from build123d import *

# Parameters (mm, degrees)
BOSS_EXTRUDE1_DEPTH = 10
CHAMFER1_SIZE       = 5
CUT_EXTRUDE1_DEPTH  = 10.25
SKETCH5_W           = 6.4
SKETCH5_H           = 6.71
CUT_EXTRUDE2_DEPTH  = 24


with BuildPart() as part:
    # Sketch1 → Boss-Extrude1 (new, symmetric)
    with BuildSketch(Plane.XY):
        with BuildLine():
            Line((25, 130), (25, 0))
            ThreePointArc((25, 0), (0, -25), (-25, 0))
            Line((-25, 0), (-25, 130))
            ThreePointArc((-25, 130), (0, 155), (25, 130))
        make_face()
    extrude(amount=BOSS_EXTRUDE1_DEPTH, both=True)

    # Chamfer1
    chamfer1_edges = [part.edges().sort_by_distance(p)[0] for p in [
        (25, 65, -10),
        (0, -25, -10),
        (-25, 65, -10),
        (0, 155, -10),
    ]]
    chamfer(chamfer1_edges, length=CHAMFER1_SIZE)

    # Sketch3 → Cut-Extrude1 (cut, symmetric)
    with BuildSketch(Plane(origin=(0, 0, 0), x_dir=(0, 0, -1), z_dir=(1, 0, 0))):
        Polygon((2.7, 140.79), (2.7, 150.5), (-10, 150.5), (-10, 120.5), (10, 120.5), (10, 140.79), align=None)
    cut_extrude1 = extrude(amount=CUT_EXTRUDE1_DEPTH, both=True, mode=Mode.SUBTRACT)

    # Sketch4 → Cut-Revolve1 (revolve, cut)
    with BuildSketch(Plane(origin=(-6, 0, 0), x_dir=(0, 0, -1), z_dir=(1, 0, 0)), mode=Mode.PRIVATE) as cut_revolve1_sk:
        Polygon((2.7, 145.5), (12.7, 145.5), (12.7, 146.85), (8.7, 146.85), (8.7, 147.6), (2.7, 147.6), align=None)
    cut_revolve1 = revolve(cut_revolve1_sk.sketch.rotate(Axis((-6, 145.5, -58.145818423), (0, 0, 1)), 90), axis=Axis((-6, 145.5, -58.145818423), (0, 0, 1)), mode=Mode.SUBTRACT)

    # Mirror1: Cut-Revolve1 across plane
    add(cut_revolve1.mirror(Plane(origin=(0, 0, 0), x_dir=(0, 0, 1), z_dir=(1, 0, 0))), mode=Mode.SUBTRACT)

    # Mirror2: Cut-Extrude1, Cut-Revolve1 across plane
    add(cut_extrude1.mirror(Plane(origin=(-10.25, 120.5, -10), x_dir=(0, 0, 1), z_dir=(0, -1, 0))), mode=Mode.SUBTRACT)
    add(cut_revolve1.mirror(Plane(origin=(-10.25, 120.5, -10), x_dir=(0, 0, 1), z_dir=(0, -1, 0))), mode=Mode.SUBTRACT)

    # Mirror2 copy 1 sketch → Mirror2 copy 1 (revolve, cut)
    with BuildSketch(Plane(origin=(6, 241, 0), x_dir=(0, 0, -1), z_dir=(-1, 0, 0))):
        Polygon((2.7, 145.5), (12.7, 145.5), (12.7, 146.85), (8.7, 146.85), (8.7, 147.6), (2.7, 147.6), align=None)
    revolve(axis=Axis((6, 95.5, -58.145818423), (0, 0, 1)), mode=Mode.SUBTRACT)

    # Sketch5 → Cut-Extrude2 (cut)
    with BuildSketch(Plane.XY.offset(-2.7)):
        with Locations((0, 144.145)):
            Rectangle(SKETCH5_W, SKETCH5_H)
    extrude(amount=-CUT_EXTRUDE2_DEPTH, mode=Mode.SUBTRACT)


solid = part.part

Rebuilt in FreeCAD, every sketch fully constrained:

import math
import FreeCAD as App
import Part
import Sketcher

V = App.Vector


def edges_at(feature, points):
    """Names of the edges that pass closest to the given points."""
    edges = feature.Shape.Edges
    near = lambda p: min(range(len(edges)), key=lambda i: edges[i].distToShape(Part.Vertex(*p))[0])
    return sorted({f"Edge{near(p) + 1}" for p in points})


def add_polygon(sketch, points):
    """Adds a closed chain of lines whose ends are joined by coincident constraints."""
    first, n = sketch.GeometryCount, len(points)
    for a, b in zip(points, points[1:] + points[:1]):
        sketch.addGeometry(Part.LineSegment(App.Vector(*a, 0), App.Vector(*b, 0)), False)
    for i in range(n):
        sketch.addConstraint(Sketcher.Constraint("Coincident", first + i, 2, first + (i + 1) % n, 1))

doc = App.newDocument("Part")
body = doc.addObject("PartDesign::Body", "Body")

# Sketch on XY plane
sketch1 = body.newObject("Sketcher::SketchObject", "Sketch")
sketch1.AttachmentSupport = (doc.getObject("XY_Plane"), [""])
sketch1.MapMode = "FlatFace"
sketch1.addGeometry(Part.LineSegment(V(25, 0, 0), V(25, 130, 0)), False)
sketch1.addGeometry(Part.ArcOfCircle(Part.Circle(V(0, 130, 0), V(0, 0, 1), 25), math.radians(0), math.radians(180)), False)
sketch1.addGeometry(Part.LineSegment(V(-25, 130, 0), V(-25, 0, 0)), False)
sketch1.addGeometry(Part.ArcOfCircle(Part.Circle(V(0, 0, 0), V(0, 0, 1), 25), math.radians(180), math.radians(360)), False)
sketch1.addConstraint(Sketcher.Constraint("Tangent", 0, 2, 1, 1))
sketch1.addConstraint(Sketcher.Constraint("Tangent", 1, 2, 2, 1))
sketch1.addConstraint(Sketcher.Constraint("Tangent", 2, 2, 3, 1))
sketch1.addConstraint(Sketcher.Constraint("Tangent", 3, 2, 0, 1))
sketch1.addConstraint(Sketcher.Constraint("Vertical", 0))
sketch1.addConstraint(Sketcher.Constraint("Vertical", 2))
sketch1.addConstraint(Sketcher.Constraint("Coincident", 3, 3, -1, 1))
sketch1.addConstraint(Sketcher.Constraint("Radius", 1, 25.0))
sketch1.addConstraint(Sketcher.Constraint("DistanceY", 0, 1, 0, 2, 130.0))
pad1 = body.newObject("PartDesign::Pad", "Pad")
pad1.Profile = sketch1
pad1.Length = 20
pad1.Midplane = True
doc.recompute()

chamfer = body.newObject("PartDesign::Chamfer", "Chamfer")
chamfer.Base = (pad1, edges_at(pad1, [
    (25, 65, -10),
    (0, -25, -10),
    (-25, 65, -10),
    (0, 155, -10),
]))
chamfer.Size = 5

# Sketch on YZ plane
sketch2 = body.newObject("Sketcher::SketchObject", "Sketch001")
sketch2.AttachmentSupport = (doc.getObject("YZ_Plane"), [""])
sketch2.MapMode = "FlatFace"
add_polygon(sketch2, [(140.79, -2.7), (150.5, -2.7), (150.5, 10), (120.5, 10), (120.5, -10), (140.79, -10)])  # lines 0-5
sketch2.addConstraint(Sketcher.Constraint("Horizontal", 0))
sketch2.addConstraint(Sketcher.Constraint("Vertical", 1))
sketch2.addConstraint(Sketcher.Constraint("Horizontal", 2))
sketch2.addConstraint(Sketcher.Constraint("Vertical", 3))
sketch2.addConstraint(Sketcher.Constraint("Horizontal", 4))
sketch2.addConstraint(Sketcher.Constraint("Vertical", 5))
sketch2.addConstraint(Sketcher.Constraint("DistanceX", 2, 2, 2, 1, 30.0))
sketch2.addConstraint(Sketcher.Constraint("DistanceY", 3, 2, 3, 1, 20.0))
sketch2.addConstraint(Sketcher.Constraint("DistanceY", 1, 1, 1, 2, 12.7))
sketch2.addConstraint(Sketcher.Constraint("DistanceY", -1, 1, 1, 2, 10.0))
sketch2.addConstraint(Sketcher.Constraint("DistanceX", 0, 1, 0, 2, 9.71))
sketch2.addConstraint(Sketcher.Constraint("DistanceX", -1, 1, 0, 2, 150.5))
pocket1 = body.newObject("PartDesign::Pocket", "Pocket")
pocket1.Profile = sketch2
pocket1.Length = 20.5
pocket1.Midplane = True

# Sketch on YZ plane
sketch3 = body.newObject("Sketcher::SketchObject", "Sketch002")
sketch3.AttachmentSupport = (doc.getObject("YZ_Plane"), [""])
sketch3.MapMode = "FlatFace"
sketch3.AttachmentOffset = App.Placement(V(0, 0, -6), App.Rotation())
add_polygon(sketch3, [(145.5, -2.7), (145.5, -12.7), (146.85, -12.7), (146.85, -8.7), (147.6, -8.7), (147.6, -2.7)])  # lines 0-5
sketch3.addGeometry(Part.LineSegment(V(145.5, -12.7, 0), V(145.5, -2.7, 0)), True)  # axis
sketch3.addConstraint(Sketcher.Constraint("Vertical", 0))
sketch3.addConstraint(Sketcher.Constraint("Horizontal", 1))
sketch3.addConstraint(Sketcher.Constraint("Vertical", 2))
sketch3.addConstraint(Sketcher.Constraint("Horizontal", 3))
sketch3.addConstraint(Sketcher.Constraint("Vertical", 4))
sketch3.addConstraint(Sketcher.Constraint("Horizontal", 5))
sketch3.addConstraint(Sketcher.Constraint("Vertical", 6))
sketch3.addConstraint(Sketcher.Constraint("Coincident", 6, 1, 0, 2))
sketch3.addConstraint(Sketcher.Constraint("Horizontal", 4, 2, 6, 2))
sketch3.addConstraint(Sketcher.Constraint("DistanceY", 0, 2, 0, 1, 10.0))
sketch3.addConstraint(Sketcher.Constraint("DistanceY", 2, 1, 2, 2, 4.0))
sketch3.addConstraint(Sketcher.Constraint("DistanceX", 5, 2, 5, 1, 2.1))
sketch3.addConstraint(Sketcher.Constraint("DistanceX", 1, 1, 1, 2, 1.35))
sketch3.addConstraint(Sketcher.Constraint("DistanceX", -1, 1, 0, 2, 145.5))
sketch3.addConstraint(Sketcher.Constraint("DistanceY", 0, 2, -1, 1, 12.7))
groove = body.newObject("PartDesign::Groove", "Groove")
groove.Profile = sketch3
groove.ReferenceAxis = (sketch3, ["Axis0"])
groove.Angle = 360
doc.recompute()

mirrored = body.newObject("PartDesign::Mirrored", "Mirrored")
mirrored.Originals = [groove]
mirrored.MirrorPlane = (doc.getObject("YZ_Plane"), [""])
body.Tip = mirrored
doc.recompute()

datumplane = body.newObject("PartDesign::Plane", "DatumPlane")
datumplane.AttachmentSupport = (doc.getObject("XZ_Plane"), [""])
datumplane.MapMode = "FlatFace"
datumplane.AttachmentOffset = App.Placement(V(0, 0, -120.5), App.Rotation())
mirrored2 = body.newObject("PartDesign::Mirrored", "Mirrored001")
mirrored2.Originals = [pocket1, groove]
mirrored2.MirrorPlane = (datumplane, [""])
body.Tip = mirrored2

# Sketch on YZ plane
sketch4 = body.newObject("Sketcher::SketchObject", "Sketch003")
sketch4.AttachmentSupport = (doc.getObject("YZ_Plane"), [""])
sketch4.MapMode = "FlatFace"
sketch4.AttachmentOffset = App.Placement(V(0, 0, 6), App.Rotation())
add_polygon(sketch4, [(95.5, -2.7), (95.5, -12.7), (94.15, -12.7), (94.15, -8.7), (93.4, -8.7), (93.4, -2.7)])  # lines 0-5
sketch4.addGeometry(Part.LineSegment(V(95.5, -12.7, 0), V(95.5, -2.7, 0)), True)  # axis
sketch4.addConstraint(Sketcher.Constraint("Vertical", 0))
sketch4.addConstraint(Sketcher.Constraint("Horizontal", 1))
sketch4.addConstraint(Sketcher.Constraint("Vertical", 2))
sketch4.addConstraint(Sketcher.Constraint("Horizontal", 3))
sketch4.addConstraint(Sketcher.Constraint("Vertical", 4))
sketch4.addConstraint(Sketcher.Constraint("Horizontal", 5))
sketch4.addConstraint(Sketcher.Constraint("Vertical", 6))
sketch4.addConstraint(Sketcher.Constraint("Coincident", 6, 1, 0, 2))
sketch4.addConstraint(Sketcher.Constraint("Horizontal", 4, 2, 6, 2))
sketch4.addConstraint(Sketcher.Constraint("DistanceY", 0, 2, 0, 1, 10.0))
sketch4.addConstraint(Sketcher.Constraint("DistanceY", 2, 1, 2, 2, 4.0))
sketch4.addConstraint(Sketcher.Constraint("DistanceX", 5, 1, 5, 2, 2.1))
sketch4.addConstraint(Sketcher.Constraint("DistanceX", 1, 2, 1, 1, 1.35))
sketch4.addConstraint(Sketcher.Constraint("DistanceX", -1, 1, 0, 2, 95.5))
sketch4.addConstraint(Sketcher.Constraint("DistanceY", 0, 2, -1, 1, 12.7))
groove2 = body.newObject("PartDesign::Groove", "Groove001")
groove2.Profile = sketch4
groove2.ReferenceAxis = (sketch4, ["Axis0"])
groove2.Angle = 360

# Sketch on XY plane
sketch5 = body.newObject("Sketcher::SketchObject", "Sketch004")
sketch5.AttachmentSupport = (doc.getObject("XY_Plane"), [""])
sketch5.MapMode = "FlatFace"
sketch5.AttachmentOffset = App.Placement(V(0, 0, -2.7), App.Rotation())
add_polygon(sketch5, [(-3.2, 147.5), (-3.2, 140.79), (3.2, 140.79), (3.2, 147.5)])  # lines 0-3
sketch5.addConstraint(Sketcher.Constraint("Vertical", 0))
sketch5.addConstraint(Sketcher.Constraint("Horizontal", 1))
sketch5.addConstraint(Sketcher.Constraint("Vertical", 2))
sketch5.addConstraint(Sketcher.Constraint("Horizontal", 3))
sketch5.addConstraint(Sketcher.Constraint("DistanceX", 1, 1, 1, 2, 6.4))
sketch5.addConstraint(Sketcher.Constraint("DistanceY", 0, 2, 0, 1, 6.71))
sketch5.addConstraint(Sketcher.Constraint("DistanceX", 0, 2, -1, 1, 3.2))
sketch5.addConstraint(Sketcher.Constraint("DistanceY", -1, 1, 2, 2, 147.5))
pocket2 = body.newObject("PartDesign::Pocket", "Pocket001")
pocket2.Profile = sketch5
pocket2.Length = 24

doc.recompute()
